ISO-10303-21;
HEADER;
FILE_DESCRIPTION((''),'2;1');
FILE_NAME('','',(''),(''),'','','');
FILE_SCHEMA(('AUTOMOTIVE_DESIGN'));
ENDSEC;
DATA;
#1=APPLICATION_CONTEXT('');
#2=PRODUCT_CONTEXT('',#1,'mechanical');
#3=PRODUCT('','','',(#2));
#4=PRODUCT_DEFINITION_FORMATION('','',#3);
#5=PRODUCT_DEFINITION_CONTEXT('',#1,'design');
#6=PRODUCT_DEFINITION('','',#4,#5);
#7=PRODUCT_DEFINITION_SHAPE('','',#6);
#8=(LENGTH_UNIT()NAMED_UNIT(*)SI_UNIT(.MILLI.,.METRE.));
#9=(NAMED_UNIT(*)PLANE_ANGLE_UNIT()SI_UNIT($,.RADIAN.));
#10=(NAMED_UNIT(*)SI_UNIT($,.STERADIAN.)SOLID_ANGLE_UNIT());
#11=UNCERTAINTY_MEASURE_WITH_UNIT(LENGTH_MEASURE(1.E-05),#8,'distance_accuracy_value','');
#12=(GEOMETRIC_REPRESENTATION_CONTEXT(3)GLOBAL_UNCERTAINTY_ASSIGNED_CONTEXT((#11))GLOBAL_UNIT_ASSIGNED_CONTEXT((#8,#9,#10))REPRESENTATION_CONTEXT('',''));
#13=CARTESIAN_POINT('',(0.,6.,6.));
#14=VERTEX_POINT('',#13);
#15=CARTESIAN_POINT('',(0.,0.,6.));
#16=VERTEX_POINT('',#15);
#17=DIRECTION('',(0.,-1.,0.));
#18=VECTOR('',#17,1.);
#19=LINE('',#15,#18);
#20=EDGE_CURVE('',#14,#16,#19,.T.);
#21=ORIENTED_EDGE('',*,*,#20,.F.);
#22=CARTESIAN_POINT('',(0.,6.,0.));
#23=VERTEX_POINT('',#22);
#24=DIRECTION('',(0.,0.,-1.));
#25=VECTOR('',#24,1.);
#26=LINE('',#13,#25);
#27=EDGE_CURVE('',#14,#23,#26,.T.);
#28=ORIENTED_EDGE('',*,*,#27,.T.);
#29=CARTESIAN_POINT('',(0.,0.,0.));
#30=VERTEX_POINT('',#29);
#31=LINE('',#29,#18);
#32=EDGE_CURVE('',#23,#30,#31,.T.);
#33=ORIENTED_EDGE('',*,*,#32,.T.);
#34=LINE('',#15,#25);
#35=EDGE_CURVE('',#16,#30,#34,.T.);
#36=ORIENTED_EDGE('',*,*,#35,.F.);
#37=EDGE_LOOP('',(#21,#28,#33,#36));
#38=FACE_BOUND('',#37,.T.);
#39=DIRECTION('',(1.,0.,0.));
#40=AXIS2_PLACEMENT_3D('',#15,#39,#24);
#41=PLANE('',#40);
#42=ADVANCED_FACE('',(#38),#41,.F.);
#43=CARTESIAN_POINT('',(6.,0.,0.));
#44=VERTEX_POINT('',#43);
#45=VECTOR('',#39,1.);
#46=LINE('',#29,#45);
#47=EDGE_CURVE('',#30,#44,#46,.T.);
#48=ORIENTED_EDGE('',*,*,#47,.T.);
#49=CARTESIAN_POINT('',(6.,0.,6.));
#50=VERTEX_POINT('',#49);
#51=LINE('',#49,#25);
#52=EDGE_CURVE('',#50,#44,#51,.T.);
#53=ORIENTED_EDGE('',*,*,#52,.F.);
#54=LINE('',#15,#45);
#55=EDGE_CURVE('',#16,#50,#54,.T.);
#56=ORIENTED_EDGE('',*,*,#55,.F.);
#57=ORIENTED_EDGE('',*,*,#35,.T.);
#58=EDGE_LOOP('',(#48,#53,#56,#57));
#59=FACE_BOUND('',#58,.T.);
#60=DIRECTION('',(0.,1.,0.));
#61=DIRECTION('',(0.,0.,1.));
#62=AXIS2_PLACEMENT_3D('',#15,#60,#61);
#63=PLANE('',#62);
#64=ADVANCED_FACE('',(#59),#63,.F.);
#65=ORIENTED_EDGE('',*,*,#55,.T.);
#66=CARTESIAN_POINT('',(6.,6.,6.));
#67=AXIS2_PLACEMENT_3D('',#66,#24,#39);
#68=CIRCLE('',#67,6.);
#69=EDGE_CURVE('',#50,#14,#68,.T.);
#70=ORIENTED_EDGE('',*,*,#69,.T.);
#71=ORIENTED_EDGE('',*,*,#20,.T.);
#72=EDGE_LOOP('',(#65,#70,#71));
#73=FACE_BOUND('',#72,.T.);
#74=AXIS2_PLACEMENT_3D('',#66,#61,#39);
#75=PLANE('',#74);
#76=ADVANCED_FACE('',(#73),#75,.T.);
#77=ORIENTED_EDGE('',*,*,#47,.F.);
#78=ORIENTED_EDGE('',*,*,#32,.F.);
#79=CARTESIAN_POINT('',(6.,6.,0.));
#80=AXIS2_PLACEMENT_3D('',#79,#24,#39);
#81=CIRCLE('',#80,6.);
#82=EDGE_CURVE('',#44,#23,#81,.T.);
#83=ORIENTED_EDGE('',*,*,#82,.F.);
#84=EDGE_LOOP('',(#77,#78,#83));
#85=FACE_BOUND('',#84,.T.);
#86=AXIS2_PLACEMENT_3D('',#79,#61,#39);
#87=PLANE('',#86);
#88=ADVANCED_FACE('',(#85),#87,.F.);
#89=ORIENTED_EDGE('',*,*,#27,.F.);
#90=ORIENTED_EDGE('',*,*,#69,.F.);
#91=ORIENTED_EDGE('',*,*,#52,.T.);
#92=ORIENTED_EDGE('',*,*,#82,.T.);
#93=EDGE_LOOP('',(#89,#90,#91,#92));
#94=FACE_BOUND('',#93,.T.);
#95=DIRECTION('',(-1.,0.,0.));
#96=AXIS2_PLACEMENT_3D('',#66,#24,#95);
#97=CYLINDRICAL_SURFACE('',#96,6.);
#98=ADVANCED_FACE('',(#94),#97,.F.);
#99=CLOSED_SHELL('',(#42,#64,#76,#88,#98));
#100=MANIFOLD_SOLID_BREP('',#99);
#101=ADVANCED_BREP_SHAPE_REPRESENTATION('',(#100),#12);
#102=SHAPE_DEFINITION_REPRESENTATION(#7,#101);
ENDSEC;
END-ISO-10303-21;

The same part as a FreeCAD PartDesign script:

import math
import FreeCAD as App
import Part
import Sketcher

doc = App.newDocument("Part")
params = doc.addObject("Spreadsheet::Sheet", "Params")
for row, (alias, value) in enumerate([
    ("sketch1_radius", "6 mm"),
    ("pad1_length", "6 mm"),
], start=1):
    params.set(f"A{row}", alias)
    params.set(f"B{row}", "=" + value)
    params.setAlias(f"B{row}", alias)

body = doc.addObject("PartDesign::Body", "Body")

# Sketch on XY plane
sketch1 = body.newObject("Sketcher::SketchObject", "Sketch")
sketch1.AttachmentSupport = (doc.getObject("XY_Plane"), [""])
sketch1.MapMode = "FlatFace"
sketch1.addGeometry([
    Part.LineSegment(App.Vector(0, 0, 0), App.Vector(6, 0, 0)),
    Part.ArcOfCircle(Part.Circle(App.Vector(6, 6, 0), App.Vector(0, 0, 1), 6), math.radians(180), math.radians(270)),
    Part.LineSegment(App.Vector(0, 6, 0), App.Vector(0, 0, 0)),
], False)
sketch1.addConstraint([
    Sketcher.Constraint("Tangent", 0, 2, 1, 2),
    Sketcher.Constraint("Tangent", 1, 1, 2, 1),
    Sketcher.Constraint("Coincident", 2, 2, 0, 1),
    Sketcher.Constraint("Horizontal", 0),
    Sketcher.Constraint("Vertical", 2),
    Sketcher.Constraint("Coincident", 2, 2, -1, 1),
    Sketcher.Constraint("Radius", 1, 6.0),
])
sketch1.setExpression("Constraints[6]", "Params.sketch1_radius")
pad1 = body.newObject("PartDesign::Pad", "Pad")
pad1.Profile = sketch1
pad1.setExpression("Length", "Params.pad1_length")

doc.recompute()
